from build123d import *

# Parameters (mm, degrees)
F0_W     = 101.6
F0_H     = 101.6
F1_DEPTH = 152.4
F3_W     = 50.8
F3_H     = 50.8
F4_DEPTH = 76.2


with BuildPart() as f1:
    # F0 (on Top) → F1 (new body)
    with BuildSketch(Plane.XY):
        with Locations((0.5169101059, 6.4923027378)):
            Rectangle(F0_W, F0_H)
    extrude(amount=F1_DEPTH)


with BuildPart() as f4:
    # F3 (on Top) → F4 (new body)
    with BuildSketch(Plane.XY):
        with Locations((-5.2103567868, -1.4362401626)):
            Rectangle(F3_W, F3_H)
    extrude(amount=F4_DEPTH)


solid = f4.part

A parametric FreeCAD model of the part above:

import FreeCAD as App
import Part
import Sketcher
from FreeCAD import Vector
Q = App.Units.Quantity


def add_polygon(sketch, points):
    """Adds a closed chain of lines whose ends are joined by coincident constraints."""
    first, n = sketch.GeometryCount, len(points)
    for a, b in zip(points, points[1:] + points[:1]):
        sketch.addGeometry(Part.LineSegment(App.Vector(*a, 0), App.Vector(*b, 0)), False)
    for i in range(n):
        sketch.addConstraint(Sketcher.Constraint("Coincident", first + i, 2, first + (i + 1) % n, 1))

doc = App.newDocument("Part")
body = doc.addObject("PartDesign::Body", "Body")

# Sketch on XY plane
sketch1 = body.newObject("Sketcher::SketchObject", "Sketch")
sketch1.AttachmentSupport = (doc.getObject("XY_Plane"), [""])
sketch1.MapMode = "FlatFace"
add_polygon(sketch1, [(-50.28309, 57.292303), (-50.28309, -44.307697), (51.31691, -44.307697), (51.31691, 57.292303)])  # lines 0-3
sketch1.addConstraint([
    Sketcher.Constraint("Vertical", 0),
    Sketcher.Constraint("Horizontal", 1),
    Sketcher.Constraint("Vertical", 2),
    Sketcher.Constraint("Horizontal", 3),
    Sketcher.Constraint("Equal", 3, 0),
    Sketcher.Constraint("DistanceX", 1, 1, 1, 2, Q("4 in")),
    Sketcher.Constraint("DistanceX", 0, 2, -1, 1, 50.28309),
    Sketcher.Constraint("DistanceY", 0, 2, -1, 1, 44.307697),
])
pad1 = body.newObject("PartDesign::Pad", "Pad")
pad1.Profile = sketch1
pad1.Length = Q("6 in")
body2 = doc.addObject("PartDesign::Body", "Body001")

# Sketch on XY plane
sketch2 = body2.newObject("Sketcher::SketchObject", "Sketch001")
sketch2.AttachmentSupport = (doc.getObject("XY_Plane001"), [""])
sketch2.MapMode = "FlatFace"
add_polygon(sketch2, [(-30.610357, 23.96376), (-30.610357, -26.83624), (20.189643, -26.83624), (20.189643, 23.96376)])  # lines 0-3
sketch2.addConstraint([
    Sketcher.Constraint("Vertical", 0),
    Sketcher.Constraint("Horizontal", 1),
    Sketcher.Constraint("Vertical", 2),
    Sketcher.Constraint("Horizontal", 3),
    Sketcher.Constraint("Equal", 3, 0),
    Sketcher.Constraint("DistanceX", 1, 1, 1, 2, Q("2 in")),
    Sketcher.Constraint("DistanceY", 0, 2, -1, 1, 26.83624),
    Sketcher.Constraint("DistanceX", 0, 2, -1, 1, 30.610357),
])
pad2 = body2.newObject("PartDesign::Pad", "Pad001")
pad2.Profile = sketch2
pad2.Length = Q("3 in")
body.Visibility = False

doc.recompute()
